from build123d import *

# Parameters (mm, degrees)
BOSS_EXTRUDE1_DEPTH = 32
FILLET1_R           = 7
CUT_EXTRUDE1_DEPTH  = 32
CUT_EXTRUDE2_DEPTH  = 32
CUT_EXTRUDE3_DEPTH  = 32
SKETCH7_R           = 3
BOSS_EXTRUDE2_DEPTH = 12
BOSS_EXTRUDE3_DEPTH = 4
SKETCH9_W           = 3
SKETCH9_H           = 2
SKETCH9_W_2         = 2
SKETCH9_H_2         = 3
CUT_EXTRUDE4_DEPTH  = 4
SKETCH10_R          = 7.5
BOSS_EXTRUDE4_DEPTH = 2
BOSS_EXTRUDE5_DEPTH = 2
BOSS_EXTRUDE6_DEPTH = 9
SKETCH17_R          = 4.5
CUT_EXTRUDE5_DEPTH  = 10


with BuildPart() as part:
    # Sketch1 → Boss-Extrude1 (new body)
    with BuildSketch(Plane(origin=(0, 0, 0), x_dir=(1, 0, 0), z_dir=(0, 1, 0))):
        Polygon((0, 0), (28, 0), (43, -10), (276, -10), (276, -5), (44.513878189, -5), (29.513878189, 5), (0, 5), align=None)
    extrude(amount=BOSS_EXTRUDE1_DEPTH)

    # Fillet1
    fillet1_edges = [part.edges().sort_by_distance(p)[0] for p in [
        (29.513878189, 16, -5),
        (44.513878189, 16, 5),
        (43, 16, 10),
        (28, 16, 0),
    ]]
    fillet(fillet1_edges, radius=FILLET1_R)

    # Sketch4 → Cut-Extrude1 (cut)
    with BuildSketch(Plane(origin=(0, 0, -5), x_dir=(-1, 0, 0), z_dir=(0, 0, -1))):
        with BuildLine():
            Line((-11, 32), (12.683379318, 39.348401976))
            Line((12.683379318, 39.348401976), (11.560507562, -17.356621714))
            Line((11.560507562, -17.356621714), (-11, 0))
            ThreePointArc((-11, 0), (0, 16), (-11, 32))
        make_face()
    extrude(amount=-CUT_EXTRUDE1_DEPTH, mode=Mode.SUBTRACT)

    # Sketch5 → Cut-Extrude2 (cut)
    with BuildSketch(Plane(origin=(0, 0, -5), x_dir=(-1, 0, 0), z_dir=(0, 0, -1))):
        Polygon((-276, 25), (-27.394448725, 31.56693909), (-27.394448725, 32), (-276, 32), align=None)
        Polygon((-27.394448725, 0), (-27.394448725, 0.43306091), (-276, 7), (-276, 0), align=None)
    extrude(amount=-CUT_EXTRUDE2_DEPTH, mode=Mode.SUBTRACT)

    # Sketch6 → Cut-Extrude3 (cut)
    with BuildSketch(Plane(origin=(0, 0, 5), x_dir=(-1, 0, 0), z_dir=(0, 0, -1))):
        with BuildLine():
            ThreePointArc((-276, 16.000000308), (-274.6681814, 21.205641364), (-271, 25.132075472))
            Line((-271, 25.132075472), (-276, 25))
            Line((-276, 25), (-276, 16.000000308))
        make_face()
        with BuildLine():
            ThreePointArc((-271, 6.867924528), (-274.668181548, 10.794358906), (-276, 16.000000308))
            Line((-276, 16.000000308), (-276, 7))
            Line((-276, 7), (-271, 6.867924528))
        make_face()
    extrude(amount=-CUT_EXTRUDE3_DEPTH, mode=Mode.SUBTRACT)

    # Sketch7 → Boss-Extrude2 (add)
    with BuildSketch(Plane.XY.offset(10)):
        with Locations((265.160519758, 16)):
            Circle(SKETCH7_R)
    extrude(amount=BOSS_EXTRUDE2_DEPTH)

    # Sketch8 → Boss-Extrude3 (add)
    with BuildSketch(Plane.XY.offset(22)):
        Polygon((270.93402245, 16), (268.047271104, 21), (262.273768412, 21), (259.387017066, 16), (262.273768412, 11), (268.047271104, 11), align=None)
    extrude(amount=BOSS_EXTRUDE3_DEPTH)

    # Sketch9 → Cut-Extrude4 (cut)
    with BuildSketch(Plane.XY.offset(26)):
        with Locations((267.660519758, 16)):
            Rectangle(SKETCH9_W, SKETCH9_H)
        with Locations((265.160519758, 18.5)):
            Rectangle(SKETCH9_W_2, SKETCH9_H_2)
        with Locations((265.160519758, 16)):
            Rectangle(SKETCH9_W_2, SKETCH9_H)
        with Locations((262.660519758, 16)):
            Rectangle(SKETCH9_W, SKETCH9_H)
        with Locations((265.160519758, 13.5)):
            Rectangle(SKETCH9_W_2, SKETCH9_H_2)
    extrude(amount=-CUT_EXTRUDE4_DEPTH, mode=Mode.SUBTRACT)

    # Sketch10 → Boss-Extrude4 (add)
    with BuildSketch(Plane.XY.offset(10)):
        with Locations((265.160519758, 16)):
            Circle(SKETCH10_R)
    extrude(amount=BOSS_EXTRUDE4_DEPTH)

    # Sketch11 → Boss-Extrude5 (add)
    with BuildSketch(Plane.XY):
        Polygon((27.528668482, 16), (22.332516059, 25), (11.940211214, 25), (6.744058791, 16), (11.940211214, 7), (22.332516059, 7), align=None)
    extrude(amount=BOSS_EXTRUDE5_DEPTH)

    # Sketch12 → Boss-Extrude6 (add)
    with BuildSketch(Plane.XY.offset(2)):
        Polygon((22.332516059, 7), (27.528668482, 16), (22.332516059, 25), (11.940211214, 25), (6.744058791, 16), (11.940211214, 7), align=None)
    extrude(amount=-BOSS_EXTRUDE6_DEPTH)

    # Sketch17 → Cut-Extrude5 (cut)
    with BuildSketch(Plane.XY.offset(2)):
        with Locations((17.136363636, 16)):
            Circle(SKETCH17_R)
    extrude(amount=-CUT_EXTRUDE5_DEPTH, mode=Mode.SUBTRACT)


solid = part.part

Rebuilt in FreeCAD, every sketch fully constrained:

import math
import FreeCAD as App
import Part
import Sketcher
Q = App.Units.Quantity


def edges_at(feature, points):
    """Names of the edges that pass closest to the given points."""
    edges = feature.Shape.Edges
    near = lambda p: min(range(len(edges)), key=lambda i: edges[i].distToShape(Part.Vertex(*p))[0])
    return sorted({f"Edge{near(p) + 1}" for p in points})

doc = App.newDocument("Part")
body = doc.addObject("PartDesign::Body", "Body")

sketch1 = body.newObject("Sketcher::SketchObject", "Sketch")
sketch1.AttachmentSupport = (doc.getObject("XZ_Plane"), [""])
sketch1.MapMode = "FlatFace"
sketch1.addGeometry([
    Part.LineSegment(App.Vector(0, 0, 0), App.Vector(28, 0, 0)),
    Part.LineSegment(App.Vector(28, 0, 0), App.Vector(43, 10, 0)),
    Part.LineSegment(App.Vector(43, 10, 0), App.Vector(276, 10, 0)),
    Part.LineSegment(App.Vector(276, 10, 0), App.Vector(276, 5, 0)),
    Part.LineSegment(App.Vector(276, 5, 0), App.Vector(45, 5, 0)),
    Part.LineSegment(App.Vector(45, 5, 0), App.Vector(30, -5, 0)),
    Part.LineSegment(App.Vector(30, -5, 0), App.Vector(0, -5, 0)),
    Part.LineSegment(App.Vector(0, -5, 0), App.Vector(0, 0, 0)),
], False)
sketch1.addConstraint([
    Sketcher.Constraint("Coincident", 0, 2, 1, 1),
    Sketcher.Constraint("Coincident", 1, 2, 2, 1),
    Sketcher.Constraint("Coincident", 2, 2, 3, 1),
    Sketcher.Constraint("Coincident", 3, 2, 4, 1),
    Sketcher.Constraint("Coincident", 4, 2, 5, 1),
    Sketcher.Constraint("Coincident", 5, 2, 6, 1),
    Sketcher.Constraint("Coincident", 6, 2, 7, 1),
    Sketcher.Constraint("Coincident", 7, 2, 0, 1),
    Sketcher.Constraint("Horizontal", 0),
    Sketcher.Constraint("Horizontal", 2),
    Sketcher.Constraint("Vertical", 3),
    Sketcher.Constraint("Horizontal", 4),
    Sketcher.Constraint("Horizontal", 6),
    Sketcher.Constraint("Vertical", 7),
    Sketcher.Constraint("Coincident", 7, 2, -1, 1),
    Sketcher.Constraint("Parallel", 1, 5),
    Sketcher.Constraint("Equal", 3, 7),
    Sketcher.Constraint("DistanceX", 0, 1, 0, 2, 28.0),
    Sketcher.Constraint("DistanceX", 2, 1, 2, 2, 233.0),
    Sketcher.Constraint("DistanceY", 3, 2, 3, 1, 5.0),
    Sketcher.Constraint("DistanceX", -1, 1, 1, 2, 43.0),
    Sketcher.Constraint("DistanceY", -1, 1, 1, 2, 10.0),
    Sketcher.Constraint("DistanceX", 4, 2, 4, 1, 231.486122),
])
pad1 = body.newObject("PartDesign::Pad", "Pad")
pad1.Profile = sketch1
pad1.Length = 32
pad1.Reversed = True
doc.recompute()

fillet = body.newObject("PartDesign::Fillet", "Fillet")
fillet.Base = (pad1, edges_at(pad1, [
    (29.514, 16, -5),
    (44.514, 16, 5),
    (43, 16, 10),
    (28, 16, 0),
]))
fillet.Radius = 7

sketch2 = body.newObject("Sketcher::SketchObject", "Sketch001")
sketch2.AttachmentSupport = (doc.getObject("XY_Plane"), [""])
sketch2.MapMode = "FlatFace"
sketch2.AttachmentOffset = App.Placement(App.Vector(0, 0, -5), App.Rotation())
sketch2.addGeometry([
    Part.LineSegment(App.Vector(-12.683379, 39.348402, 0), App.Vector(11, 32, 0)),
    Part.ArcOfCircle(Part.Circle(App.Vector(17.136364, 16, 0), App.Vector(0, 0, 1), 17.136364), math.radians(110.982954), math.radians(249.017046)),
    Part.LineSegment(App.Vector(11, 0, 0), App.Vector(-11.560508, -17.356622, 0)),
    Part.LineSegment(App.Vector(-11.560508, -17.356622, 0), App.Vector(-12.683379, 39.348402, 0)),
], False)
sketch2.addConstraint([
    Sketcher.Constraint("Coincident", 0, 2, 1, 1),
    Sketcher.Constraint("Coincident", 1, 2, 2, 1),
    Sketcher.Constraint("Coincident", 2, 2, 3, 1),
    Sketcher.Constraint("Coincident", 3, 2, 0, 1),
    Sketcher.Constraint("PointOnObject", 1, 2, -1),
    Sketcher.Constraint("Vertical", 0, 2, 1, 2),
    Sketcher.Constraint("DistanceY", -1, 1, 1, 3, 16.0),
    Sketcher.Constraint("DistanceX", -1, 1, 0, 2, 11.0),
    Sketcher.Constraint("Radius", 1, 17.136364),
    Sketcher.Constraint("DistanceY", -1, 1, 3, 2, 39.348402),
    Sketcher.Constraint("Distance", 2, 28.464519),
    Sketcher.Constraint("Distance", 3, 56.71614),
    Sketcher.Constraint("DistanceY", 2, 2, -1, 1, 17.356622),
])
pocket1 = body.newObject("PartDesign::Pocket", "Pocket")
pocket1.Profile = sketch2
pocket1.Length = 32
pocket1.Reversed = True

sketch3 = body.newObject("Sketcher::SketchObject", "Sketch002")
sketch3.AttachmentSupport = (doc.getObject("XY_Plane"), [""])
sketch3.MapMode = "FlatFace"
sketch3.AttachmentOffset = App.Placement(App.Vector(0, 0, -5), App.Rotation())
sketch3.addGeometry([
    Part.LineSegment(App.Vector(276, 25, 0), App.Vector(27.39, 31.57, 0)),
    Part.LineSegment(App.Vector(27.39, 31.57, 0), App.Vector(27.39, 32, 0)),
    Part.LineSegment(App.Vector(27.39, 32, 0), App.Vector(276, 32, 0)),
    Part.LineSegment(App.Vector(276, 32, 0), App.Vector(276, 25, 0)),
    Part.LineSegment(App.Vector(27.39, 0, 0), App.Vector(27.39, 0.43, 0)),
    Part.LineSegment(App.Vector(27.39, 0.43, 0), App.Vector(276, 7, 0)),
    Part.LineSegment(App.Vector(276, 7, 0), App.Vector(276, 0, 0)),
    Part.LineSegment(App.Vector(276, 0, 0), App.Vector(27.39, 0, 0)),
], False)
sketch3.addConstraint([
    Sketcher.Constraint("Coincident", 0, 2, 1, 1),
    Sketcher.Constraint("Coincident", 1, 2, 2, 1),
    Sketcher.Constraint("Coincident", 2, 2, 3, 1),
    Sketcher.Constraint("Coincident", 3, 2, 0, 1),
    Sketcher.Constraint("Coincident", 4, 2, 5, 1),
    Sketcher.Constraint("Coincident", 5, 2, 6, 1),
    Sketcher.Constraint("Coincident", 6, 2, 7, 1),
    Sketcher.Constraint("Coincident", 7, 2, 4, 1),
    Sketcher.Constraint("Vertical", 1),
    Sketcher.Constraint("Horizontal", 2),
    Sketcher.Constraint("Vertical", 3),
    Sketcher.Constraint("Vertical", 4),
    Sketcher.Constraint("Vertical", 6),
    Sketcher.Constraint("Horizontal", 7),
    Sketcher.Constraint("PointOnObject", 6, 2, -1),
    Sketcher.Constraint("Vertical", 1, 2, 4, 2),
    Sketcher.Constraint("Vertical", 3, 2, 5, 2),
    Sketcher.Constraint("Equal", 1, 4),
    Sketcher.Constraint("Equal", 3, 6),
    Sketcher.Constraint("DistanceY", 3, 2, 3, 1, 7.0),
    Sketcher.Constraint("DistanceY", -1, 1, 1, 2, 32.0),
    Sketcher.Constraint("DistanceX", -1, 1, 2, 2, 276.0),
    Sketcher.Constraint("DistanceX", 2, 1, 2, 2, 248.605551),
    Sketcher.Constraint("DistanceY", 1, 1, 1, 2, 0.433061),
])
pocket2 = body.newObject("PartDesign::Pocket", "Pocket001")
pocket2.Profile = sketch3
pocket2.Length = 32
pocket2.Reversed = True

sketch4 = body.newObject("Sketcher::SketchObject", "Sketch003")
sketch4.AttachmentSupport = (doc.getObject("XY_Plane"), [""])
sketch4.MapMode = "FlatFace"
sketch4.AttachmentOffset = App.Placement(App.Vector(0, 0, 5), App.Rotation())
sketch4.addGeometry([
    Part.ArcOfCircle(Part.Circle(App.Vector(265, 16, 0), App.Vector(0, 0, 1), 11), math.radians(0), math.radians(57)),
    Part.LineSegment(App.Vector(271, 25, 0), App.Vector(276, 25, 0)),
    Part.LineSegment(App.Vector(276, 25, 0), App.Vector(276, 16, 0)),
    Part.ArcOfCircle(Part.Circle(App.Vector(265, 16, 0), App.Vector(0, 0, 1), 11), math.radians(-57), math.radians(0)),
    Part.LineSegment(App.Vector(276, 16, 0), App.Vector(276, 7, 0)),
    Part.LineSegment(App.Vector(276, 7, 0), App.Vector(271, 7, 0)),
], False)
sketch4.addConstraint([
    Sketcher.Constraint("Coincident", 0, 2, 1, 1),
    Sketcher.Constraint("Coincident", 1, 2, 2, 1),
    Sketcher.Constraint("Tangent", 2, 2, 0, 1),
    Sketcher.Constraint("Tangent", 3, 2, 4, 1),
    Sketcher.Constraint("Coincident", 4, 2, 5, 1),
    Sketcher.Constraint("Coincident", 5, 2, 3, 1),
    Sketcher.Constraint("Vertical", 2),
    Sketcher.Constraint("Vertical", 4),
    Sketcher.Constraint("Coincident", 3, 3, 0, 3),
    Sketcher.Constraint("Equal", 0, 3),
    Sketcher.Constraint("Vertical", 0, 2, 5, 2),
    Sketcher.Constraint("Equal", 2, 4),
    Sketcher.Constraint("DistanceY", 2, 2, 2, 1, 9.0),
    Sketcher.Constraint("DistanceY", -1, 1, 0, 3, 16.0),
    Sketcher.Constraint("DistanceX", -1, 1, 0, 2, 271.0),
    Sketcher.Constraint("DistanceX", -1, 1, 1, 2, 276.0),
    Sketcher.Constraint("Radius", 0, 10.83948),
])
pocket3 = body.newObject("PartDesign::Pocket", "Pocket002")
pocket3.Profile = sketch4
pocket3.Length = 32
pocket3.Reversed = True

sketch5 = body.newObject("Sketcher::SketchObject", "Sketch004")
sketch5.AttachmentSupport = (doc.getObject("XY_Plane"), [""])
sketch5.MapMode = "FlatFace"
sketch5.AttachmentOffset = App.Placement(App.Vector(0, 0, 10), App.Rotation())
sketch5.addGeometry(Part.Circle(App.Vector(265.2, 16, 0), App.Vector(0, 0, 1), 3), False)
sketch5.addConstraint([
    Sketcher.Constraint("Diameter", 0, 6.0),
    Sketcher.Constraint("DistanceY", -1, 1, 0, 3, 16.0),
    Sketcher.Constraint("DistanceX", -1, 1, 0, 3, 265.16052),
])
pad2 = body.newObject("PartDesign::Pad", "Pad001")
pad2.Profile = sketch5
pad2.Length = 12

sketch6 = body.newObject("Sketcher::SketchObject", "Sketch005")
sketch6.AttachmentSupport = (doc.getObject("XY_Plane"), [""])
sketch6.MapMode = "FlatFace"
sketch6.AttachmentOffset = App.Placement(App.Vector(0, 0, 22), App.Rotation())
sketch6.addGeometry([
    Part.LineSegment(App.Vector(271, 16, 0), App.Vector(268, 21, 0)),
    Part.LineSegment(App.Vector(268, 21, 0), App.Vector(262, 21, 0)),
    Part.LineSegment(App.Vector(262, 21, 0), App.Vector(259, 16, 0)),
    Part.LineSegment(App.Vector(259, 16, 0), App.Vector(262, 11, 0)),
    Part.LineSegment(App.Vector(262, 11, 0), App.Vector(268, 11, 0)),
    Part.LineSegment(App.Vector(268, 11, 0), App.Vector(271, 16, 0)),
], False)
sketch6.addConstraint([
    Sketcher.Constraint("Coincident", 0, 2, 1, 1),
    Sketcher.Constraint("Coincident", 1, 2, 2, 1),
    Sketcher.Constraint("Coincident", 2, 2, 3, 1),
    Sketcher.Constraint("Coincident", 3, 2, 4, 1),
    Sketcher.Constraint("Coincident", 4, 2, 5, 1),
    Sketcher.Constraint("Coincident", 5, 2, 0, 1),
    Sketcher.Constraint("Horizontal", 1),
    Sketcher.Constraint("Horizontal", 4),
    Sketcher.Constraint("Parallel", 0, 3),
    Sketcher.Constraint("Parallel", 2, 5),
    Sketcher.Constraint("Horizontal", 2, 2, 5, 2),
    Sketcher.Constraint("Vertical", 1, 2, 3, 2),
    Sketcher.Constraint("Vertical", 0, 2, 4, 2),
    Sketcher.Constraint("Angle", 0, Q("120 deg")),
    Sketcher.Constraint("DistanceY", -1, 1, 0, 2, 21.0),
    Sketcher.Constraint("DistanceY", -1, 1, 2, 2, 16.0),
    Sketcher.Constraint("DistanceX", 1, 2, 1, 1, 5.773503),
    Sketcher.Constraint("DistanceX", -1, 1, 0, 2, 268.047271),
])
pad3 = body.newObject("PartDesign::Pad", "Pad002")
pad3.Profile = sketch6
pad3.Length = 4

sketch7 = body.newObject("Sketcher::SketchObject", "Sketch006")
sketch7.AttachmentSupport = (doc.getObject("XY_Plane"), [""])
sketch7.MapMode = "FlatFace"
sketch7.AttachmentOffset = App.Placement(App.Vector(0, 0, 26), App.Rotation())
sketch7.addGeometry([
    Part.LineSegment(App.Vector(269.2, 15, 0), App.Vector(269.2, 17, 0)),
    Part.LineSegment(App.Vector(269.2, 17, 0), App.Vector(266.2, 17, 0)),
    Part.LineSegment(App.Vector(266.2, 17, 0), App.Vector(266.2, 20, 0)),
    Part.LineSegment(App.Vector(266.2, 20, 0), App.Vector(264.2, 20, 0)),
    Part.LineSegment(App.Vector(264.2, 20, 0), App.Vector(264.2, 17, 0)),
    Part.LineSegment(App.Vector(264.2, 17, 0), App.Vector(261.2, 17, 0)),
    Part.LineSegment(App.Vector(261.2, 17, 0), App.Vector(261.2, 15, 0)),
    Part.LineSegment(App.Vector(261.2, 15, 0), App.Vector(264.2, 15, 0)),
    Part.LineSegment(App.Vector(264.2, 15, 0), App.Vector(264.2, 12, 0)),
    Part.LineSegment(App.Vector(264.2, 12, 0), App.Vector(266.2, 12, 0)),
    Part.LineSegment(App.Vector(266.2, 12, 0), App.Vector(266.2, 15, 0)),
    Part.LineSegment(App.Vector(266.2, 15, 0), App.Vector(269.2, 15, 0)),
], False)
sketch7.addConstraint([
    Sketcher.Constraint("Coincident", 0, 2, 1, 1),
    Sketcher.Constraint("Coincident", 1, 2, 2, 1),
    Sketcher.Constraint("Coincident", 2, 2, 3, 1),
    Sketcher.Constraint("Coincident", 3, 2, 4, 1),
    Sketcher.Constraint("Coincident", 4, 2, 5, 1),
    Sketcher.Constraint("Coincident", 5, 2, 6, 1),
    Sketcher.Constraint("Coincident", 6, 2, 7, 1),
    Sketcher.Constraint("Coincident", 7, 2, 8, 1),
    Sketcher.Constraint("Coincident", 8, 2, 9, 1),
    Sketcher.Constraint("Coincident", 9, 2, 10, 1),
    Sketcher.Constraint("Coincident", 10, 2, 11, 1),
    Sketcher.Constraint("Coincident", 11, 2, 0, 1),
    Sketcher.Constraint("Vertical", 0),
    Sketcher.Constraint("Horizontal", 1),
    Sketcher.Constraint("Vertical", 2),
    Sketcher.Constraint("Horizontal", 3),
    Sketcher.Constraint("Vertical", 4),
    Sketcher.Constraint("Horizontal", 5),
    Sketcher.Constraint("Vertical", 6),
    Sketcher.Constraint("Horizontal", 7),
    Sketcher.Constraint("Vertical", 8),
    Sketcher.Constraint("Horizontal", 9),
    Sketcher.Constraint("Vertical", 10),
    Sketcher.Constraint("Horizontal", 11),
    Sketcher.Constraint("Horizontal", 1, 2, 4, 2),
    Sketcher.Constraint("Horizontal", 7, 2, 10, 2),
    Sketcher.Constraint("Vertical", 4, 2, 7, 2),
    Sketcher.Constraint("Vertical", 2, 2, 9, 2),
    Sketcher.Constraint("Equal", 1, 5),
    Sketcher.Constraint("Equal", 9, 0),
    Sketcher.Constraint("Equal", 11, 2),
    Sketcher.Constraint("Equal", 4, 8),
    Sketcher.Constraint("DistanceX", 1, 2, 1, 1, 3.0),
    Sketcher.Constraint("DistanceX", 3, 2, 3, 1, 2.0),
    Sketcher.Constraint("DistanceY", -1, 1, 0, 2, 17.0),
    Sketcher.Constraint("DistanceX", -1, 1, 0, 2, 269.16052),
])
pocket4 = body.newObject("PartDesign::Pocket", "Pocket003")
pocket4.Profile = sketch7
pocket4.Length = 4

sketch8 = body.newObject("Sketcher::SketchObject", "Sketch007")
sketch8.AttachmentSupport = (doc.getObject("XY_Plane"), [""])
sketch8.MapMode = "FlatFace"
sketch8.AttachmentOffset = App.Placement(App.Vector(0, 0, 10), App.Rotation())
sketch8.addGeometry(Part.Circle(App.Vector(265, 16, 0), App.Vector(0, 0, 1), 8), False)
sketch8.addConstraint([
    Sketcher.Constraint("Diameter", 0, 15.0),
    Sketcher.Constraint("DistanceY", -1, 1, 0, 3, 16.0),
    Sketcher.Constraint("DistanceX", -1, 1, 0, 3, 265.16052),
])
pad4 = body.newObject("PartDesign::Pad", "Pad003")
pad4.Profile = sketch8
pad4.Length = 2

sketch9 = body.newObject("Sketcher::SketchObject", "Sketch008")
sketch9.AttachmentSupport = (doc.getObject("XY_Plane"), [""])
sketch9.MapMode = "FlatFace"
sketch9.addGeometry([
    Part.LineSegment(App.Vector(28, 16, 0), App.Vector(22, 25, 0)),
    Part.LineSegment(App.Vector(22, 25, 0), App.Vector(12, 25, 0)),
    Part.LineSegment(App.Vector(12, 25, 0), App.Vector(7, 16, 0)),
    Part.LineSegment(App.Vector(7, 16, 0), App.Vector(12, 7, 0)),
    Part.LineSegment(App.Vector(12, 7, 0), App.Vector(22, 7, 0)),
    Part.LineSegment(App.Vector(22, 7, 0), App.Vector(28, 16, 0)),
], False)
sketch9.addConstraint([
    Sketcher.Constraint("Coincident", 0, 2, 1, 1),
    Sketcher.Constraint("Coincident", 1, 2, 2, 1),
    Sketcher.Constraint("Coincident", 2, 2, 3, 1),
    Sketcher.Constraint("Coincident", 3, 2, 4, 1),
    Sketcher.Constraint("Coincident", 4, 2, 5, 1),
    Sketcher.Constraint("Coincident", 5, 2, 0, 1),
    Sketcher.Constraint("Horizontal", 1),
    Sketcher.Constraint("Horizontal", 4),
    Sketcher.Constraint("Parallel", 0, 3),
    Sketcher.Constraint("Parallel", 2, 5),
    Sketcher.Constraint("Horizontal", 2, 2, 5, 2),
    Sketcher.Constraint("Vertical", 1, 2, 3, 2),
    Sketcher.Constraint("Vertical", 0, 2, 4, 2),
    Sketcher.Constraint("Angle", 0, Q("120 deg")),
    Sketcher.Constraint("DistanceY", -1, 1, 0, 2, 25.0),
    Sketcher.Constraint("DistanceY", -1, 1, 2, 2, 16.0),
    Sketcher.Constraint("DistanceX", 1, 2, 1, 1, 10.392305),
    Sketcher.Constraint("DistanceX", -1, 1, 1, 2, 11.940211),
])
pad5 = body.newObject("PartDesign::Pad", "Pad004")
pad5.Profile = sketch9
pad5.Length = 2

sketch10 = body.newObject("Sketcher::SketchObject", "Sketch009")
sketch10.AttachmentSupport = (doc.getObject("XY_Plane"), [""])
sketch10.MapMode = "FlatFace"
sketch10.AttachmentOffset = App.Placement(App.Vector(0, 0, 2), App.Rotation())
sketch10.addGeometry([
    Part.LineSegment(App.Vector(22, 7, 0), App.Vector(28, 16, 0)),
    Part.LineSegment(App.Vector(28, 16, 0), App.Vector(22, 25, 0)),
    Part.LineSegment(App.Vector(22, 25, 0), App.Vector(12, 25, 0)),
    Part.LineSegment(App.Vector(12, 25, 0), App.Vector(7, 16, 0)),
    Part.LineSegment(App.Vector(7, 16, 0), App.Vector(12, 7, 0)),
    Part.LineSegment(App.Vector(12, 7, 0), App.Vector(22, 7, 0)),
], False)
sketch10.addConstraint([
    Sketcher.Constraint("Coincident", 0, 2, 1, 1),
    Sketcher.Constraint("Coincident", 1, 2, 2, 1),
    Sketcher.Constraint("Coincident", 2, 2, 3, 1),
    Sketcher.Constraint("Coincident", 3, 2, 4, 1),
    Sketcher.Constraint("Coincident", 4, 2, 5, 1),
    Sketcher.Constraint("Coincident", 5, 2, 0, 1),
    Sketcher.Constraint("Horizontal", 2),
    Sketcher.Constraint("Horizontal", 5),
    Sketcher.Constraint("Parallel", 0, 3),
    Sketcher.Constraint("Parallel", 1, 4),
    Sketcher.Constraint("Horizontal", 0, 2, 3, 2),
    Sketcher.Constraint("Vertical", 2, 2, 4, 2),
    Sketcher.Constraint("Vertical", 1, 2, 5, 2),
    Sketcher.Constraint("Angle", 0, Q("60 deg")),
    Sketcher.Constraint("DistanceY", -1, 1, 0, 2, 16.0),
    Sketcher.Constraint("DistanceY", -1, 1, 1, 2, 25.0),
    Sketcher.Constraint("DistanceX", 2, 2, 2, 1, 10.392305),
    Sketcher.Constraint("DistanceX", -1, 1, 0, 2, 27.528668),
])
pad6 = body.newObject("PartDesign::Pad", "Pad005")
pad6.Profile = sketch10
pad6.Length = 9
pad6.Reversed = True

sketch11 = body.newObject("Sketcher::SketchObject", "Sketch010")
sketch11.AttachmentSupport = (doc.getObject("XY_Plane"), [""])
sketch11.MapMode = "FlatFace"
sketch11.AttachmentOffset = App.Placement(App.Vector(0, 0, 2), App.Rotation())
sketch11.addGeometry(Part.Circle(App.Vector(17.1, 16, 0), App.Vector(0, 0, 1), 4.5), False)
sketch11.addConstraint([
    Sketcher.Constraint("Diameter", 0, 9.0),
    Sketcher.Constraint("DistanceY", -1, 1, 0, 3, 16.0),
    Sketcher.Constraint("DistanceX", -1, 1, 0, 3, 17.136364),
])
pocket5 = body.newObject("PartDesign::Pocket", "Pocket004")
pocket5.Profile = sketch11
pocket5.Length = 10

doc.recompute()
